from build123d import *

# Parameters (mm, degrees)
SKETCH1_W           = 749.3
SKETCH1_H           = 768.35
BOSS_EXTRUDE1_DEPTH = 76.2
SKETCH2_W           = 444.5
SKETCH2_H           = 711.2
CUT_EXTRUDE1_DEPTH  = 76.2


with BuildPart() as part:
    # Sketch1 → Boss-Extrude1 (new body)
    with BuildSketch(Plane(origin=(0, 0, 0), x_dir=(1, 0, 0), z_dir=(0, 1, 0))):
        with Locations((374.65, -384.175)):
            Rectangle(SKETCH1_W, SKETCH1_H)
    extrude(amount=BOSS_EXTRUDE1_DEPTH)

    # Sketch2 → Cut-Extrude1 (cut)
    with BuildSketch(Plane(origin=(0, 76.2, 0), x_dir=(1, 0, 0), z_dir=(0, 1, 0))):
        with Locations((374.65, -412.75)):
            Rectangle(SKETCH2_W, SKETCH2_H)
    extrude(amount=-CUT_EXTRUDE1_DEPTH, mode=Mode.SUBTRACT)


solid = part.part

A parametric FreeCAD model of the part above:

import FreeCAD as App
import Part
import Sketcher
from FreeCAD import Vector
Q = App.Units.Quantity


def add_polygon(sketch, points):
    """Adds a closed chain of lines whose ends are joined by coincident constraints."""
    first, n = sketch.GeometryCount, len(points)
    for a, b in zip(points, points[1:] + points[:1]):
        sketch.addGeometry(Part.LineSegment(App.Vector(*a, 0), App.Vector(*b, 0)), False)
    for i in range(n):
        sketch.addConstraint(Sketcher.Constraint("Coincident", first + i, 2, first + (i + 1) % n, 1))

doc = App.newDocument("Part")
body = doc.addObject("PartDesign::Body", "Body")

sketch1 = body.newObject("Sketcher::SketchObject", "Sketch")
sketch1.AttachmentSupport = (doc.getObject("XZ_Plane"), [""])
sketch1.MapMode = "FlatFace"
add_polygon(sketch1, [(0, 0), (0, 768.35), (749.3, 768.35), (749.3, 0)])
sketch1.addConstraint([
    Sketcher.Constraint("Vertical", 0),
    Sketcher.Constraint("Horizontal", 1),
    Sketcher.Constraint("Vertical", 2),
    Sketcher.Constraint("Horizontal", 3),
    Sketcher.Constraint("Coincident", 3, 2, -1, 1),
    Sketcher.Constraint("DistanceX", 1, 1, 1, 2, Q("29.5 in")),
    Sketcher.Constraint("DistanceY", 0, 1, 0, 2, Q("30.25 in")),
])
pad1 = body.newObject("PartDesign::Pad", "Pad")
pad1.Profile = sketch1
pad1.Length = Q("3 in")
pad1.Reversed = True

sketch2 = body.newObject("Sketcher::SketchObject", "Sketch001")
sketch2.AttachmentSupport = (doc.getObject("XZ_Plane"), [""])
sketch2.MapMode = "FlatFace"
sketch2.AttachmentOffset = App.Placement(Vector(0, 0, -3 * 25.4), App.Rotation())
add_polygon(sketch2, [(152.4, 57.15), (152.4, 768.35), (596.9, 768.35), (596.9, 57.15)])
sketch2.addConstraint([
    Sketcher.Constraint("Vertical", 0),
    Sketcher.Constraint("Horizontal", 1),
    Sketcher.Constraint("Vertical", 2),
    Sketcher.Constraint("Horizontal", 3),
    Sketcher.Constraint("DistanceY", 0, 1, 0, 2, Q("28 in")),
    Sketcher.Constraint("DistanceX", 1, 1, 1, 2, Q("17.5 in")),
    Sketcher.Constraint("DistanceX", -1, 1, 0, 2, Q("6 in")),
    Sketcher.Constraint("DistanceY", -1, 1, 0, 2, Q("30.25 in")),
])
pocket1 = body.newObject("PartDesign::Pocket", "Pocket")
pocket1.Profile = sketch2
pocket1.Length = Q("3 in")
pocket1.Reversed = True

doc.recompute()
